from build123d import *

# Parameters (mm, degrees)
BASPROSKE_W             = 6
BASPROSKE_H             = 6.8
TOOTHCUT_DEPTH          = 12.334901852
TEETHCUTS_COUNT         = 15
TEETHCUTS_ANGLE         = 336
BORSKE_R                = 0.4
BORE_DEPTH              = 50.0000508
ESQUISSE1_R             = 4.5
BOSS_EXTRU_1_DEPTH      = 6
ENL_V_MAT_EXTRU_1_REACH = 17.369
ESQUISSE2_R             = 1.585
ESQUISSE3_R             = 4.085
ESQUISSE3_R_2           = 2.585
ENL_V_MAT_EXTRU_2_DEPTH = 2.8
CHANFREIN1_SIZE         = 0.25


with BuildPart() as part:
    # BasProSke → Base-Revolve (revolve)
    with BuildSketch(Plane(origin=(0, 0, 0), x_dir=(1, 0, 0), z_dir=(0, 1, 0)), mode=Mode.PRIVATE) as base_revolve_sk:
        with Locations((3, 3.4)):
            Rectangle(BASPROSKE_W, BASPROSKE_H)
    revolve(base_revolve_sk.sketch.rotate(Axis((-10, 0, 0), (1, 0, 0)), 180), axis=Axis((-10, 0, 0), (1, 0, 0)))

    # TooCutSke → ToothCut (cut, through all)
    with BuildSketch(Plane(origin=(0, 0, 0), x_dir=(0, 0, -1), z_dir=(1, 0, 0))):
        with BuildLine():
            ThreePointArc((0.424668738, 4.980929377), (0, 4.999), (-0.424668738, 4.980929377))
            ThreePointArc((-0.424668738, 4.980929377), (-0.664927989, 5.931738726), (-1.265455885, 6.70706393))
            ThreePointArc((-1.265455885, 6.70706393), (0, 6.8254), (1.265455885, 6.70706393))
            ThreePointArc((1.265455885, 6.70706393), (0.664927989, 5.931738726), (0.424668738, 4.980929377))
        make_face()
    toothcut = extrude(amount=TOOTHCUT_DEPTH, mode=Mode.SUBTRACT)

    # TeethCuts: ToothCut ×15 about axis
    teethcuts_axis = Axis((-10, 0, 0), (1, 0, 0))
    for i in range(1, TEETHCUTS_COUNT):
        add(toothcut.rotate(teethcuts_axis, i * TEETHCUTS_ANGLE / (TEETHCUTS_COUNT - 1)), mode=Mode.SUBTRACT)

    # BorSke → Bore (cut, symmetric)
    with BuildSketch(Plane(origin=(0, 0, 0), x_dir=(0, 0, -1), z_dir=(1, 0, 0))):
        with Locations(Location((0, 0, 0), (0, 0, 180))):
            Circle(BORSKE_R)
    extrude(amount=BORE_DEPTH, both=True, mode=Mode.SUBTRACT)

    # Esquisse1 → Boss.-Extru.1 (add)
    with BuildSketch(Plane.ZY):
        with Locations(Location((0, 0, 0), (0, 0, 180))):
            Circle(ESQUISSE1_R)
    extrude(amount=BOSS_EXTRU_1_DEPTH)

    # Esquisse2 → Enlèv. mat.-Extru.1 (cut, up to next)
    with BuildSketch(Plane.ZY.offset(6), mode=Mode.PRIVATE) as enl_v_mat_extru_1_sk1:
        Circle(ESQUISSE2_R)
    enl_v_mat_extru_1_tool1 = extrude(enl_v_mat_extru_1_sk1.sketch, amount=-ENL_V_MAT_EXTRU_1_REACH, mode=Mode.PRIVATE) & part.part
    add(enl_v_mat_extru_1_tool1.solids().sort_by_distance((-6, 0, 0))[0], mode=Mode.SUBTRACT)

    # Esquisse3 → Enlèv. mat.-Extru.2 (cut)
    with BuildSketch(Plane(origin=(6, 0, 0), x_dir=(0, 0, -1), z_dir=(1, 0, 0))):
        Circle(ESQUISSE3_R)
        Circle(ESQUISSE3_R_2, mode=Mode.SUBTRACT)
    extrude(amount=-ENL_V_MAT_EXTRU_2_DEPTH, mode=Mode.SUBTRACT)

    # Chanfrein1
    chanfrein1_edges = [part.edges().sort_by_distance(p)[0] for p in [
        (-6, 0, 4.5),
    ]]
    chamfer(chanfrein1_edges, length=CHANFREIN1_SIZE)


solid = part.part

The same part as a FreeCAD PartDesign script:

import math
import FreeCAD as App
import Part
import Sketcher
from FreeCAD import Vector
Q = App.Units.Quantity


def edges_at(feature, points):
    """Names of the edges that pass closest to the given points."""
    edges = feature.Shape.Edges
    near = lambda p: min(range(len(edges)), key=lambda i: edges[i].distToShape(Part.Vertex(*p))[0])
    return sorted({f"Edge{near(p) + 1}" for p in points})

doc = App.newDocument("Part")
body = doc.addObject("PartDesign::Body", "Body")

sketch1 = body.newObject("Sketcher::SketchObject", "Sketch")
sketch1.AttachmentSupport = (doc.getObject("XZ_Plane"), [""])
sketch1.MapMode = "FlatFace"
sketch1.addGeometry(Part.LineSegment(Vector(0, -7, 0), Vector(0, 0, 0)), False)
sketch1.addGeometry(Part.LineSegment(Vector(0, 0, 0), Vector(6, 0, 0)), False)
sketch1.addGeometry(Part.LineSegment(Vector(6, 0, 0), Vector(6, -7, 0)), False)
sketch1.addGeometry(Part.LineSegment(Vector(6, -7, 0), Vector(0, -7, 0)), False)
sketch1.addConstraint(Sketcher.Constraint("Coincident", 0, 2, 1, 1))
sketch1.addConstraint(Sketcher.Constraint("Coincident", 1, 2, 2, 1))
sketch1.addConstraint(Sketcher.Constraint("Coincident", 2, 2, 3, 1))
sketch1.addConstraint(Sketcher.Constraint("Coincident", 3, 2, 0, 1))
sketch1.addConstraint(Sketcher.Constraint("Vertical", 0))
sketch1.addConstraint(Sketcher.Constraint("Horizontal", 1))
sketch1.addConstraint(Sketcher.Constraint("Vertical", 2))
sketch1.addConstraint(Sketcher.Constraint("Horizontal", 3))
sketch1.addConstraint(Sketcher.Constraint("Coincident", 0, 2, -1, 1))
sketch1.addConstraint(Sketcher.Constraint("DistanceX", 1, 1, 1, 2, Q("6 mm")))
sketch1.addConstraint(Sketcher.Constraint("DistanceY", 0, 1, 0, 2, Q("6.8 mm")))
revolution = body.newObject("PartDesign::Revolution", "Revolution")
revolution.Profile = sketch1
revolution.ReferenceAxis = (sketch1, ["H_Axis"])
revolution.Angle = 360

sketch2 = body.newObject("Sketcher::SketchObject", "Sketch001")
sketch2.AttachmentSupport = (doc.getObject("YZ_Plane"), [""])
sketch2.MapMode = "FlatFace"
sketch2.addGeometry(Part.ArcOfCircle(Part.Circle(Vector(0, 0, 0), Vector(0, 0, 1), 5), math.radians(-4.87), math.radians(4.87)), False)
sketch2.addGeometry(Part.ArcOfCircle(Part.Circle(Vector(4.9, -2.8, 0), Vector(0, 0, 1), 2.4), math.radians(40), math.radians(88)), False)
sketch2.addGeometry(Part.ArcOfCircle(Part.Circle(Vector(0, 0, 0), Vector(0, 0, 1), 6.8), math.radians(-11), math.radians(11)), False)
sketch2.addGeometry(Part.ArcOfCircle(Part.Circle(Vector(4.9, 2.8, 0), Vector(0, 0, 1), 2.4), math.radians(-88), math.radians(-40)), False)
sketch2.addConstraint(Sketcher.Constraint("Coincident", 0, 1, 1, 2))
sketch2.addConstraint(Sketcher.Constraint("Coincident", 1, 1, 2, 1))
sketch2.addConstraint(Sketcher.Constraint("Coincident", 2, 2, 3, 2))
sketch2.addConstraint(Sketcher.Constraint("Coincident", 3, 1, 0, 2))
sketch2.addConstraint(Sketcher.Constraint("Coincident", 0, 3, -1, 1))
sketch2.addConstraint(Sketcher.Constraint("Coincident", 2, 3, -1, 1))
sketch2.addConstraint(Sketcher.Constraint("Equal", 1, 3))
sketch2.addConstraint(Sketcher.Constraint("Symmetric", 1, 3, 3, 3, -1))
sketch2.addConstraint(Sketcher.Constraint("Radius", 1, Q("2.4 mm")))
sketch2.addConstraint(Sketcher.Constraint("Radius", 0, Q("4.999 mm")))
sketch2.addConstraint(Sketcher.Constraint("Radius", 2, Q("6.8254 mm")))
sketch2.addConstraint(Sketcher.Constraint("DistanceX", 1, 3, 1, 1, Q("1.8263 mm")))
sketch2.addConstraint(Sketcher.Constraint("DistanceX", -1, 1, 0, 1, Q("4.980929 mm")))
pocket1 = body.newObject("PartDesign::Pocket", "Pocket")
pocket1.Profile = sketch2
pocket1.Type = "ThroughAll"
pocket1.Reversed = True
doc.recompute()

polarpattern = body.newObject("PartDesign::PolarPattern", "PolarPattern")
polarpattern.Originals = [pocket1]
polarpattern.Axis = (doc.getObject("X_Axis"), [""])
polarpattern.Angle = 360
polarpattern.Occurrences = 15
body.Tip = polarpattern

sketch3 = body.newObject("Sketcher::SketchObject", "Sketch002")
sketch3.AttachmentSupport = (doc.getObject("YZ_Plane"), [""])
sketch3.MapMode = "FlatFace"
sketch3.addGeometry(Part.Circle(Vector(0, 0, 0), Vector(0, 0, 1), 0.4), False)
sketch3.addConstraint(Sketcher.Constraint("Coincident", 0, 3, -1, 1))
sketch3.addConstraint(Sketcher.Constraint("Diameter", 0, Q("0.8 mm")))
pocket2 = body.newObject("PartDesign::Pocket", "Pocket001")
pocket2.Profile = sketch3
pocket2.Length = 100.000102
pocket2.Midplane = True

sketch4 = body.newObject("Sketcher::SketchObject", "Sketch003")
sketch4.AttachmentSupport = (doc.getObject("YZ_Plane"), [""])
sketch4.MapMode = "FlatFace"
sketch4.addGeometry(Part.Circle(Vector(0, 0, 0), Vector(0, 0, 1), 4.5), False)
sketch4.addConstraint(Sketcher.Constraint("Coincident", 0, 3, -1, 1))
sketch4.addConstraint(Sketcher.Constraint("Diameter", 0, Q("9 mm")))
pad1 = body.newObject("PartDesign::Pad", "Pad")
pad1.Profile = sketch4
pad1.Length = 6
pad1.Reversed = True

sketch5 = body.newObject("Sketcher::SketchObject", "Sketch004")
sketch5.AttachmentSupport = (doc.getObject("YZ_Plane"), [""])
sketch5.MapMode = "FlatFace"
sketch5.AttachmentOffset = App.Placement(Vector(0, 0, -6), App.Rotation())
sketch5.addGeometry(Part.Circle(Vector(0, 0, 0), Vector(0, 0, 1), 1.6), False)
sketch5.addConstraint(Sketcher.Constraint("Coincident", 0, 3, -1, 1))
sketch5.addConstraint(Sketcher.Constraint("Diameter", 0, Q("3.17 mm")))
pocket3 = body.newObject("PartDesign::Pocket", "Pocket002")
pocket3.Profile = sketch5
pocket3.Length = 12
pocket3.Reversed = True

sketch6 = body.newObject("Sketcher::SketchObject", "Sketch005")
sketch6.AttachmentSupport = (doc.getObject("YZ_Plane"), [""])
sketch6.MapMode = "FlatFace"
sketch6.AttachmentOffset = App.Placement(Vector(0, 0, 6), App.Rotation())
sketch6.addGeometry(Part.Circle(Vector(0, 0, 0), Vector(0, 0, 1), 4.1), False)
sketch6.addGeometry(Part.Circle(Vector(0, 0, 0), Vector(0, 0, 1), 2.6), False)
sketch6.addConstraint(Sketcher.Constraint("Coincident", 0, 3, -1, 1))
sketch6.addConstraint(Sketcher.Constraint("Coincident", 1, 3, -1, 1))
sketch6.addConstraint(Sketcher.Constraint("Diameter", 0, Q("8.17 mm")))
sketch6.addConstraint(Sketcher.Constraint("Diameter", 1, Q("5.17 mm")))
pocket4 = body.newObject("PartDesign::Pocket", "Pocket003")
pocket4.Profile = sketch6
pocket4.Length = 2.8
doc.recompute()

chamfer = body.newObject("PartDesign::Chamfer", "Chamfer")
chamfer.Base = (pocket4, edges_at(pocket4, [(-6, 0, 4.5)]))
chamfer.Size = 0.25

doc.recompute()
